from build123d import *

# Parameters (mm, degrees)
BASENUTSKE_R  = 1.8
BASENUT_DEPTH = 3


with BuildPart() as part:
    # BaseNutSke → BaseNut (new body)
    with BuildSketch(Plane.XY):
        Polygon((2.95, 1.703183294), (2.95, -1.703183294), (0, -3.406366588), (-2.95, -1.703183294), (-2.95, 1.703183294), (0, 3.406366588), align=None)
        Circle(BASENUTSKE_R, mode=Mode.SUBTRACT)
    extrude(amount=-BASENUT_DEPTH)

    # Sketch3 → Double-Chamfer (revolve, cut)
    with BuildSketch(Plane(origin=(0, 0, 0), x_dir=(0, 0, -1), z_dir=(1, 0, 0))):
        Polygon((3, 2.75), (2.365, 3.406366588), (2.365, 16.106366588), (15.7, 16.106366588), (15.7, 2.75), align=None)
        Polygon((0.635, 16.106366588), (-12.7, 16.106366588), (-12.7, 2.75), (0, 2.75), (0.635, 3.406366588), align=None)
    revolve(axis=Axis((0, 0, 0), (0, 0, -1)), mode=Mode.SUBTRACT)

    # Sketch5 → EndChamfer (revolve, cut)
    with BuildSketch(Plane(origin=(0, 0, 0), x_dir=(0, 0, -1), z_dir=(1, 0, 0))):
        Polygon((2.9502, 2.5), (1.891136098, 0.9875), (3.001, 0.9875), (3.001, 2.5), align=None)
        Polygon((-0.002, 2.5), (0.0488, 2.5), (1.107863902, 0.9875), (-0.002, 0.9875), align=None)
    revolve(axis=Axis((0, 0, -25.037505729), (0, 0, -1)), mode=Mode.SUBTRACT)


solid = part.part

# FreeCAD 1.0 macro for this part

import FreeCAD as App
import Part
import Sketcher
from FreeCAD import Vector
Q = App.Units.Quantity

doc = App.newDocument("Part")
body = doc.addObject("PartDesign::Body", "Body")

# Sketch on XY plane
sketch1 = body.newObject("Sketcher::SketchObject", "Sketch")
sketch1.AttachmentSupport = (doc.getObject("XY_Plane"), [""])
sketch1.MapMode = "FlatFace"
sketch1.addGeometry([
    Part.LineSegment(Vector(3, -1.7, 0), Vector(3, 1.7, 0)),  # 0
    Part.LineSegment(Vector(3, 1.7, 0), Vector(0, 3.4, 0)),  # 1
    Part.LineSegment(Vector(0, 3.4, 0), Vector(-3, 1.7, 0)),  # 2
    Part.LineSegment(Vector(-3, 1.7, 0), Vector(-3, -1.7, 0)),  # 3
    Part.LineSegment(Vector(-3, -1.7, 0), Vector(0, -3.4, 0)),  # 4
    Part.LineSegment(Vector(0, -3.4, 0), Vector(3, -1.7, 0)),  # 5
    Part.Circle(Vector(0, 0, 0), Vector(0, 0, 1), 1.8),  # 6
], False)
sketch1.addConstraint([
    Sketcher.Constraint("Coincident", 0, 2, 1, 1),
    Sketcher.Constraint("Coincident", 1, 2, 2, 1),
    Sketcher.Constraint("Coincident", 2, 2, 3, 1),
    Sketcher.Constraint("Coincident", 3, 2, 4, 1),
    Sketcher.Constraint("Coincident", 4, 2, 5, 1),
    Sketcher.Constraint("Coincident", 5, 2, 0, 1),
    Sketcher.Constraint("Vertical", 0),
    Sketcher.Constraint("Vertical", 3),
    Sketcher.Constraint("Coincident", 6, 3, -1, 1),
    Sketcher.Constraint("Symmetric", 0, 2, 3, 2, -1, 1),
    Sketcher.Constraint("Symmetric", 1, 2, 4, 2, -1, 1),
    Sketcher.Constraint("PointOnObject", 1, 2, -2),
    Sketcher.Constraint("Parallel", 2, 5),
    Sketcher.Constraint("Horizontal", 0, 2, 2, 2),
    Sketcher.Constraint("Angle", 1, Q("150 deg")),
    Sketcher.Constraint("Diameter", 6, Q("3.6 mm")),
    Sketcher.Constraint("DistanceX", -1, 1, 0, 2, Q("2.95 mm")),
    Sketcher.Constraint("DistanceY", 0, 1, 0, 2, Q("3.406367 mm")),
])
pad1 = body.newObject("PartDesign::Pad", "Pad")
pad1.Profile = sketch1
pad1.Length = 3
pad1.Reversed = True

# Sketch on YZ plane
sketch2 = body.newObject("Sketcher::SketchObject", "Sketch001")
sketch2.AttachmentSupport = (doc.getObject("YZ_Plane"), [""])
sketch2.MapMode = "FlatFace"
sketch2.addGeometry([
    Part.LineSegment(Vector(3.4, -2.4, 0), Vector(2.8, -3, 0)),  # 0
    Part.LineSegment(Vector(2.8, -3, 0), Vector(2.8, -15.7, 0)),  # 1
    Part.LineSegment(Vector(2.8, -15.7, 0), Vector(16.1, -15.7, 0)),  # 2
    Part.LineSegment(Vector(16.1, -15.7, 0), Vector(16.1, -2.4, 0)),  # 3
    Part.LineSegment(Vector(16.1, -2.4, 0), Vector(3.4, -2.4, 0)),  # 4
    Part.LineSegment(Vector(16.1, -0.6, 0), Vector(16.1, 12.7, 0)),  # 5
    Part.LineSegment(Vector(16.1, 12.7, 0), Vector(2.8, 12.7, 0)),  # 6
    Part.LineSegment(Vector(2.8, 12.7, 0), Vector(2.8, 0, 0)),  # 7
    Part.LineSegment(Vector(2.8, 0, 0), Vector(3.4, -0.6, 0)),  # 8
    Part.LineSegment(Vector(3.4, -0.6, 0), Vector(16.1, -0.6, 0)),  # 9
], False)
sketch2.addConstraint([
    Sketcher.Constraint("Coincident", 0, 2, 1, 1),
    Sketcher.Constraint("Coincident", 1, 2, 2, 1),
    Sketcher.Constraint("Coincident", 2, 2, 3, 1),
    Sketcher.Constraint("Coincident", 3, 2, 4, 1),
    Sketcher.Constraint("Coincident", 4, 2, 0, 1),
    Sketcher.Constraint("Coincident", 5, 2, 6, 1),
    Sketcher.Constraint("Coincident", 6, 2, 7, 1),
    Sketcher.Constraint("Coincident", 7, 2, 8, 1),
    Sketcher.Constraint("Coincident", 8, 2, 9, 1),
    Sketcher.Constraint("Coincident", 9, 2, 5, 1),
    Sketcher.Constraint("Vertical", 1),
    Sketcher.Constraint("Horizontal", 2),
    Sketcher.Constraint("Vertical", 3),
    Sketcher.Constraint("Horizontal", 4),
    Sketcher.Constraint("Vertical", 5),
    Sketcher.Constraint("Horizontal", 6),
    Sketcher.Constraint("Vertical", 7),
    Sketcher.Constraint("Horizontal", 9),
    Sketcher.Constraint("PointOnObject", 7, 2, -1),
    Sketcher.Constraint("Vertical", 3, 2, 5, 2),
    Sketcher.Constraint("Vertical", 1, 2, 6, 2),
    Sketcher.Constraint("Vertical", 4, 2, 8, 2),
    Sketcher.Constraint("Equal", 9, 1),
    Sketcher.Constraint("Equal", 3, 5),
    Sketcher.Constraint("Equal", 1, 7),
    Sketcher.Constraint("DistanceX", 4, 2, 4, 1, Q("0.5 in")),
    Sketcher.Constraint("DistanceY", 3, 1, 3, 2, Q("0.525 in")),
    Sketcher.Constraint("DistanceX", -1, 1, 0, 2, Q("2.75 mm")),
    Sketcher.Constraint("DistanceY", 0, 2, -1, 1, Q("3 mm")),
    Sketcher.Constraint("Distance", 0, Q("0.913259 mm")),
])
groove = body.newObject("PartDesign::Groove", "Groove")
groove.Profile = sketch2
groove.ReferenceAxis = (sketch2, ["V_Axis"])
groove.Angle = 360

# Sketch on YZ plane
sketch3 = body.newObject("Sketcher::SketchObject", "Sketch002")
sketch3.AttachmentSupport = (doc.getObject("YZ_Plane"), [""])
sketch3.MapMode = "FlatFace"
sketch3.addGeometry([
    Part.LineSegment(Vector(2.5, -2.95, 0), Vector(0.99, -1.89, 0)),  # 0
    Part.LineSegment(Vector(0.99, -1.89, 0), Vector(0.99, -3, 0)),  # 1
    Part.LineSegment(Vector(0.99, -3, 0), Vector(2.5, -3, 0)),  # 2
    Part.LineSegment(Vector(2.5, -3, 0), Vector(2.5, -2.95, 0)),  # 3
    Part.LineSegment(Vector(2.5, -0.05, 0), Vector(2.5, 0, 0)),  # 4
    Part.LineSegment(Vector(2.5, 0, 0), Vector(0.99, 0, 0)),  # 5
    Part.LineSegment(Vector(0.99, 0, 0), Vector(0.99, -1.11, 0)),  # 6
    Part.LineSegment(Vector(0.99, -1.11, 0), Vector(2.5, -0.05, 0)),  # 7
], False)
sketch3.addConstraint([
    Sketcher.Constraint("Coincident", 0, 2, 1, 1),
    Sketcher.Constraint("Coincident", 1, 2, 2, 1),
    Sketcher.Constraint("Coincident", 2, 2, 3, 1),
    Sketcher.Constraint("Coincident", 3, 2, 0, 1),
    Sketcher.Constraint("Coincident", 4, 2, 5, 1),
    Sketcher.Constraint("Coincident", 5, 2, 6, 1),
    Sketcher.Constraint("Coincident", 6, 2, 7, 1),
    Sketcher.Constraint("Coincident", 7, 2, 4, 1),
    Sketcher.Constraint("Vertical", 1),
    Sketcher.Constraint("Horizontal", 2),
    Sketcher.Constraint("Vertical", 3),
    Sketcher.Constraint("Vertical", 4),
    Sketcher.Constraint("Horizontal", 5),
    Sketcher.Constraint("Vertical", 6),
    Sketcher.Constraint("Vertical", 3, 2, 4, 2),
    Sketcher.Constraint("Vertical", 1, 2, 5, 2),
    Sketcher.Constraint("Equal", 3, 4),
    Sketcher.Constraint("Equal", 1, 6),
    Sketcher.Constraint("Angle", 0, Q("145 deg")),
    Sketcher.Constraint("DistanceY", 3, 1, 3, 2, Q("0.002 in")),
    Sketcher.Constraint("DistanceX", 2, 1, 2, 2, Q("1.5125 mm")),
    Sketcher.Constraint("DistanceX", -1, 1, 0, 2, Q("0.9875 mm")),
    Sketcher.Constraint("DistanceY", 1, 2, -1, 1, Q("3.001 mm")),
    Sketcher.Constraint("DistanceY", -1, 1, 4, 2, Q("0.002 mm")),
])
groove2 = body.newObject("PartDesign::Groove", "Groove001")
groove2.Profile = sketch3
groove2.ReferenceAxis = (sketch3, ["V_Axis"])
groove2.Angle = 360

doc.recompute()
